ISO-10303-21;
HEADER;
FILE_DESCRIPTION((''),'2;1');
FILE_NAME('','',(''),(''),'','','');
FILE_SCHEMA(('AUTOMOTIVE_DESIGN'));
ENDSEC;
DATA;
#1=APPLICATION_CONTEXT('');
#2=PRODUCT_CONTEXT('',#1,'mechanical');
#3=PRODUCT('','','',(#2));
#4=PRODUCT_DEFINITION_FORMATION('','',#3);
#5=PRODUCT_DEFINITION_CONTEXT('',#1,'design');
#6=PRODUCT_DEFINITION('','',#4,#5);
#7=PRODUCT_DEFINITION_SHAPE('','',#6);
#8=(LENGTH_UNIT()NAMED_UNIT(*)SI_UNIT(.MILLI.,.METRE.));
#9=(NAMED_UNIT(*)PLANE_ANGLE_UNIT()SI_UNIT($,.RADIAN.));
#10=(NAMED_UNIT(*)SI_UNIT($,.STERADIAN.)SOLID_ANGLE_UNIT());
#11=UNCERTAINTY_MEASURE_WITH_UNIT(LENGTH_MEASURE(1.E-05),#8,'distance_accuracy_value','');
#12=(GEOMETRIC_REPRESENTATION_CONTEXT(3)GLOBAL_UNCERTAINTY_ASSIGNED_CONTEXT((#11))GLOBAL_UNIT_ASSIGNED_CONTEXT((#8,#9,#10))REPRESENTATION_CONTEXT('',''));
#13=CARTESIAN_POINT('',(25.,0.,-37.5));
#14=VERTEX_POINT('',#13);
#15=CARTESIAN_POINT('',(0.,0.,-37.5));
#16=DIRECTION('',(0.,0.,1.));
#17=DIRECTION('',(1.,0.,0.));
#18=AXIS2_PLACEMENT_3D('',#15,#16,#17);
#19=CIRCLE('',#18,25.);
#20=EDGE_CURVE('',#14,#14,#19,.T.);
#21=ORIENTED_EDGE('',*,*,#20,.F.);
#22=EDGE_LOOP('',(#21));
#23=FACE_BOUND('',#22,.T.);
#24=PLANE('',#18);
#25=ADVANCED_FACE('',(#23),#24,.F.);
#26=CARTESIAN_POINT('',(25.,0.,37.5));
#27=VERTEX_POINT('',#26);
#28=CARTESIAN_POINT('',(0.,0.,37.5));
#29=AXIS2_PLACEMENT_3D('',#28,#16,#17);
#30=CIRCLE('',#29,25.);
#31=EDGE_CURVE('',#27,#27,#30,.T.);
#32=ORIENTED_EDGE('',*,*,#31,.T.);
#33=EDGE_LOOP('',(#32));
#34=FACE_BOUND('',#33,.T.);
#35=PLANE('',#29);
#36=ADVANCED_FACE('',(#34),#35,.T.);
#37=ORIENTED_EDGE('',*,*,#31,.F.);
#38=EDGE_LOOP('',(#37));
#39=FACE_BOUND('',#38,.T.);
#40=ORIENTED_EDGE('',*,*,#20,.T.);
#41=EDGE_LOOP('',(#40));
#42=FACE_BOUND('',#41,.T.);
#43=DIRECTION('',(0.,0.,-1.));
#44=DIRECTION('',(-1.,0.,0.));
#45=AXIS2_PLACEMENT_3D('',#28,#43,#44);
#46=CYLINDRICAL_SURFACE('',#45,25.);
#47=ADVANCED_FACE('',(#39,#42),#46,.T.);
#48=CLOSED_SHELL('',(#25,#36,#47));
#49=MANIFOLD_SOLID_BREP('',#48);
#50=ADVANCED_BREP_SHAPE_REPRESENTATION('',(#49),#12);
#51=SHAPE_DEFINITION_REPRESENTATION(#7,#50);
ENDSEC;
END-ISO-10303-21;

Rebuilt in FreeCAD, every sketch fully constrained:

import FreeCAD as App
import Part
import Sketcher
Q = App.Units.Quantity

doc = App.newDocument("Part")
body = doc.addObject("PartDesign::Body", "Body")

# Sketch on XY plane
sketch1 = body.newObject("Sketcher::SketchObject", "Sketch")
sketch1.AttachmentSupport = (doc.getObject("XY_Plane"), [""])
sketch1.MapMode = "FlatFace"
sketch1.addGeometry(Part.Circle(App.Vector(0, 0, 0), App.Vector(0, 0, 1), 25), False)
sketch1.addConstraint([
    Sketcher.Constraint("Coincident", 0, 3, -1, 1),
    Sketcher.Constraint("Diameter", 0, Q("50 mm")),
])
pad1 = body.newObject("PartDesign::Pad", "Pad")
pad1.Profile = sketch1
pad1.Length = 75
pad1.Midplane = True

doc.recompute()
